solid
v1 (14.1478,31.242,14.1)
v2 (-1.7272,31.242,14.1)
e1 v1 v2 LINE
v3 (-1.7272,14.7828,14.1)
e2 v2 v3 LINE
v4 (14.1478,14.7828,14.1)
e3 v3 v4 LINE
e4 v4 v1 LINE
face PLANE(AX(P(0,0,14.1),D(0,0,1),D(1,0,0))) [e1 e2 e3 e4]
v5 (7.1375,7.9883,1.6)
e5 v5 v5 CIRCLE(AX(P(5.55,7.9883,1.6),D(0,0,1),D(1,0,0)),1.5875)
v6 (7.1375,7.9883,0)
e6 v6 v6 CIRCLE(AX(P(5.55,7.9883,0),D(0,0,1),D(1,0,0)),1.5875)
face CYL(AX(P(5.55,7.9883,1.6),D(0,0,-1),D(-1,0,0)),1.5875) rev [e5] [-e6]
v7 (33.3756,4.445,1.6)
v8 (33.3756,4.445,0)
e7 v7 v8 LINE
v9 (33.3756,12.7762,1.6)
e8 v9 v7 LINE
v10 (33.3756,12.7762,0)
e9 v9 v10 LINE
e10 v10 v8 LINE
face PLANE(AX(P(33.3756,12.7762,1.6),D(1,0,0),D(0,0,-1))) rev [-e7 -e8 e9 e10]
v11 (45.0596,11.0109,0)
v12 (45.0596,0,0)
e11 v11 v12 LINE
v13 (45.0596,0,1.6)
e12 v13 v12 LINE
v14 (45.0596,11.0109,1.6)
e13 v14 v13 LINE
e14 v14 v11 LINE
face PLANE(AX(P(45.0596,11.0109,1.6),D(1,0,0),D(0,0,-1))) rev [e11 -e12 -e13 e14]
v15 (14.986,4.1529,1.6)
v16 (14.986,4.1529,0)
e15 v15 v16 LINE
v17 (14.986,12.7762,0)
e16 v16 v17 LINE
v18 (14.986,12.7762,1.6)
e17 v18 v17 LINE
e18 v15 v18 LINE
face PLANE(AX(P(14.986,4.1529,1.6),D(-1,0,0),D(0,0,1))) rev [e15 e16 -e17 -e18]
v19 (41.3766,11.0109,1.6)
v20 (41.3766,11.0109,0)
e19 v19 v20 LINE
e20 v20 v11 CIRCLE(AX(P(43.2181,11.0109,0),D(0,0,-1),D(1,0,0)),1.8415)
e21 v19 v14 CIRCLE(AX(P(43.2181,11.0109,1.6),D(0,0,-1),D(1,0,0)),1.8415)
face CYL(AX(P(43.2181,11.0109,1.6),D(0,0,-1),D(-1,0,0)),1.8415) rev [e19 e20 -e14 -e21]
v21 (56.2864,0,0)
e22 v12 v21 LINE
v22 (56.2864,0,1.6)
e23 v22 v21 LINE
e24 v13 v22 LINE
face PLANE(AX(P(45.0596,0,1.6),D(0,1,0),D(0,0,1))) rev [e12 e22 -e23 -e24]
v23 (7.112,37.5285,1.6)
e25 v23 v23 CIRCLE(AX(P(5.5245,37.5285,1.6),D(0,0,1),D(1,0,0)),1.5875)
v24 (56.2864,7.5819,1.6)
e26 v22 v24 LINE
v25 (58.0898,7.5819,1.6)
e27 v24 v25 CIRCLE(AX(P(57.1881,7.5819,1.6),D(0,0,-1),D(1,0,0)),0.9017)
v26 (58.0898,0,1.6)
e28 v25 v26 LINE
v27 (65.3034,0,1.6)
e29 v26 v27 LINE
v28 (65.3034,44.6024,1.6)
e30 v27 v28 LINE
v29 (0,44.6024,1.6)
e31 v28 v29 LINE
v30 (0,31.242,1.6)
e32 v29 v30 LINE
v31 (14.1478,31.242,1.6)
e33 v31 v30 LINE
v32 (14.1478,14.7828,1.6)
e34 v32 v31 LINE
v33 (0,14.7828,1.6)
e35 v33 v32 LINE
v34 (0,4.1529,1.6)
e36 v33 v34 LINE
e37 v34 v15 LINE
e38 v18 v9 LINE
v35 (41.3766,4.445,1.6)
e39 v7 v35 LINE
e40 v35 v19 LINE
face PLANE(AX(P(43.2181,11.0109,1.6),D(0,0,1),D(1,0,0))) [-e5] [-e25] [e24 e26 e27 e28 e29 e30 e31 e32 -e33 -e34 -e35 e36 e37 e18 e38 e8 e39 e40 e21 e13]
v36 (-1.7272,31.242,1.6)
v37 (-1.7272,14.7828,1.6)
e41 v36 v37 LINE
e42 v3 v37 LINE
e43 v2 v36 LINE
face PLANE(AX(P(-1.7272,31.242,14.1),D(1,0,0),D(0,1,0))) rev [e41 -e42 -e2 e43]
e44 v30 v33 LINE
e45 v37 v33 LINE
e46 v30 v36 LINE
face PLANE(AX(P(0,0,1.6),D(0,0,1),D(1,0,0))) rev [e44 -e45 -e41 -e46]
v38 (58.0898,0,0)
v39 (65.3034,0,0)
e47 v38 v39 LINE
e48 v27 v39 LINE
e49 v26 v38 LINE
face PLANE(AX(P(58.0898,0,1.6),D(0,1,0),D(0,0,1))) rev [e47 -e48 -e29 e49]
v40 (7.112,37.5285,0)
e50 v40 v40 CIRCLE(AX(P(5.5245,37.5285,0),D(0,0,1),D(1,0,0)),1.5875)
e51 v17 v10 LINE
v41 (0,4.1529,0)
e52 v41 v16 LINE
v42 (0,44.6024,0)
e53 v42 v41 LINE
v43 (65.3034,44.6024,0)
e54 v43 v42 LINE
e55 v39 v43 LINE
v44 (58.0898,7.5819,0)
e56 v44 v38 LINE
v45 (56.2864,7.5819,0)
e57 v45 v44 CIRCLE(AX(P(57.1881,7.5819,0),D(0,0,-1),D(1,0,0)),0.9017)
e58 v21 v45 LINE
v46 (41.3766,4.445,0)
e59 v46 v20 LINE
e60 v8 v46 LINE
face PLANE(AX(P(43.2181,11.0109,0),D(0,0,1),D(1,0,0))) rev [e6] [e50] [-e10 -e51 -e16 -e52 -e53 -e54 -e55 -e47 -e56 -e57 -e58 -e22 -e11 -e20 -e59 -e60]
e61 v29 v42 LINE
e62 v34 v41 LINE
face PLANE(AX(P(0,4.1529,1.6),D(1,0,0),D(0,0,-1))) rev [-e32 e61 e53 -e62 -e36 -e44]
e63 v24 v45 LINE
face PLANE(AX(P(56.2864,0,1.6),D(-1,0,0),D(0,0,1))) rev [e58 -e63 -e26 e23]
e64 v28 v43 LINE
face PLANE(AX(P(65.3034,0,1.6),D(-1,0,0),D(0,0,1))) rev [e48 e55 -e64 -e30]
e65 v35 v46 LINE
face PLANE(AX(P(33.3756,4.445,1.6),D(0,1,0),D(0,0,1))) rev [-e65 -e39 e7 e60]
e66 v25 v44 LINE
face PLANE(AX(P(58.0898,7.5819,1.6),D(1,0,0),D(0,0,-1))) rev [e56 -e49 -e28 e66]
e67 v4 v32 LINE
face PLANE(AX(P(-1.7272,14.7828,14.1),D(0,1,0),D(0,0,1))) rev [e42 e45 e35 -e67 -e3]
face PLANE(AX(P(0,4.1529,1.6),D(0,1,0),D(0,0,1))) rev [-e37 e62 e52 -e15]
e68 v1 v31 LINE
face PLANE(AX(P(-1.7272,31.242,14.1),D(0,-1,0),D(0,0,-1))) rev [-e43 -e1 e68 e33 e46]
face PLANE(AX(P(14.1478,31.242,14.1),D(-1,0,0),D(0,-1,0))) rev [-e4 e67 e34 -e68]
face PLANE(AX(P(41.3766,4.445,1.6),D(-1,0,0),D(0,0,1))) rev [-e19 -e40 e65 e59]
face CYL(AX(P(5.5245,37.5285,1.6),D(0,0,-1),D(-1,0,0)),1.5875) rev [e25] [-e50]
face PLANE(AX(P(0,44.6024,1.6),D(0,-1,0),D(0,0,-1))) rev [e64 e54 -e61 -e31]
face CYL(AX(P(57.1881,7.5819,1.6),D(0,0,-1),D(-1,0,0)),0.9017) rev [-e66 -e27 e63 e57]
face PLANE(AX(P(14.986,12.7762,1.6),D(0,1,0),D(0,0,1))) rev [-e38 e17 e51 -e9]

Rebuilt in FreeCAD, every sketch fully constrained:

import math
import FreeCAD as App
import Part
import Sketcher
Q = App.Units.Quantity

doc = App.newDocument("Part")
body = doc.addObject("PartDesign::Body", "Body")

# Sketch on XY plane
sketch1 = doc.addObject("Sketcher::SketchObject", "Sketch")
body.addObject(sketch1)
sketch1.AttachmentSupport = (doc.XY_Plane, [""])
sketch1.MapMode = "FlatFace"
sketch1.addGeometry(Part.LineSegment(App.Vector(0, 4.2, 0), App.Vector(15, 4.2, 0)), False)
sketch1.addGeometry(Part.LineSegment(App.Vector(15, 4.2, 0), App.Vector(15, 12.8, 0)), False)
sketch1.addGeometry(Part.LineSegment(App.Vector(15, 12.8, 0), App.Vector(33.4, 12.8, 0)), False)
sketch1.addGeometry(Part.LineSegment(App.Vector(33.4, 12.8, 0), App.Vector(33.4, 4.4, 0)), False)
sketch1.addGeometry(Part.LineSegment(App.Vector(33.4, 4.4, 0), App.Vector(41.4, 4.4, 0)), False)
sketch1.addGeometry(Part.LineSegment(App.Vector(41.4, 4.4, 0), App.Vector(41.4, 11, 0)), False)
sketch1.addGeometry(Part.ArcOfCircle(Part.Circle(App.Vector(43.2, 11, 0), App.Vector(0, 0, 1), 1.8), math.radians(0), math.radians(180)), False)
sketch1.addGeometry(Part.LineSegment(App.Vector(45.1, 11, 0), App.Vector(45.1, 0, 0)), False)
sketch1.addGeometry(Part.LineSegment(App.Vector(45.1, 0, 0), App.Vector(56.3, 0, 0)), False)
sketch1.addGeometry(Part.LineSegment(App.Vector(56.3, 0, 0), App.Vector(56.3, 7.6, 0)), False)
sketch1.addGeometry(Part.ArcOfCircle(Part.Circle(App.Vector(57.2, 7.6, 0), App.Vector(0, 0, 1), 0.9), math.radians(0), math.radians(180)), False)
sketch1.addGeometry(Part.LineSegment(App.Vector(58.1, 7.6, 0), App.Vector(58.1, 0, 0)), False)
sketch1.addGeometry(Part.LineSegment(App.Vector(58.1, 0, 0), App.Vector(65.3, 0, 0)), False)
sketch1.addGeometry(Part.LineSegment(App.Vector(65.3, 0, 0), App.Vector(65.3, 44.6, 0)), False)
sketch1.addGeometry(Part.LineSegment(App.Vector(65.3, 44.6, 0), App.Vector(0, 44.6, 0)), False)
sketch1.addGeometry(Part.LineSegment(App.Vector(0, 44.6, 0), App.Vector(0, 4.2, 0)), False)
sketch1.addGeometry(Part.Circle(App.Vector(5.5, 8, 0), App.Vector(0, 0, 1), 1.6), False)
sketch1.addGeometry(Part.Circle(App.Vector(5.5, 37.5, 0), App.Vector(0, 0, 1), 1.6), False)
sketch1.addConstraint(Sketcher.Constraint("Coincident", 0, 2, 1, 1))
sketch1.addConstraint(Sketcher.Constraint("Coincident", 1, 2, 2, 1))
sketch1.addConstraint(Sketcher.Constraint("Coincident", 2, 2, 3, 1))
sketch1.addConstraint(Sketcher.Constraint("Coincident", 3, 2, 4, 1))
sketch1.addConstraint(Sketcher.Constraint("Coincident", 4, 2, 5, 1))
sketch1.addConstraint(Sketcher.Constraint("Tangent", 5, 2, 6, 2))
sketch1.addConstraint(Sketcher.Constraint("Tangent", 6, 1, 7, 1))
sketch1.addConstraint(Sketcher.Constraint("Coincident", 7, 2, 8, 1))
sketch1.addConstraint(Sketcher.Constraint("Coincident", 8, 2, 9, 1))
sketch1.addConstraint(Sketcher.Constraint("Tangent", 9, 2, 10, 2))
sketch1.addConstraint(Sketcher.Constraint("Tangent", 10, 1, 11, 1))
sketch1.addConstraint(Sketcher.Constraint("Coincident", 11, 2, 12, 1))
sketch1.addConstraint(Sketcher.Constraint("Coincident", 12, 2, 13, 1))
sketch1.addConstraint(Sketcher.Constraint("Coincident", 13, 2, 14, 1))
sketch1.addConstraint(Sketcher.Constraint("Coincident", 14, 2, 15, 1))
sketch1.addConstraint(Sketcher.Constraint("Coincident", 15, 2, 0, 1))
sketch1.addConstraint(Sketcher.Constraint("Horizontal", 0))
sketch1.addConstraint(Sketcher.Constraint("Vertical", 1))
sketch1.addConstraint(Sketcher.Constraint("Horizontal", 2))
sketch1.addConstraint(Sketcher.Constraint("Vertical", 3))
sketch1.addConstraint(Sketcher.Constraint("Horizontal", 4))
sketch1.addConstraint(Sketcher.Constraint("Vertical", 5))
sketch1.addConstraint(Sketcher.Constraint("Vertical", 7))
sketch1.addConstraint(Sketcher.Constraint("Horizontal", 8))
sketch1.addConstraint(Sketcher.Constraint("Vertical", 9))
sketch1.addConstraint(Sketcher.Constraint("Vertical", 11))
sketch1.addConstraint(Sketcher.Constraint("Horizontal", 12))
sketch1.addConstraint(Sketcher.Constraint("Vertical", 13))
sketch1.addConstraint(Sketcher.Constraint("Horizontal", 14))
sketch1.addConstraint(Sketcher.Constraint("Vertical", 15))
sketch1.addConstraint(Sketcher.Constraint("Equal", 16, 17))
sketch1.addConstraint(Sketcher.Constraint("PointOnObject", 7, 2, -1))
sketch1.addConstraint(Sketcher.Constraint("PointOnObject", 11, 2, -1))
sketch1.addConstraint(Sketcher.Constraint("PointOnObject", 14, 2, -2))
sketch1.addConstraint(Sketcher.Constraint("Diameter", 16, Q("0.125 in")))
sketch1.addConstraint(Sketcher.Constraint("DistanceX", 0, 1, 0, 2, Q("0.59 in")))
sketch1.addConstraint(Sketcher.Constraint("Radius", 6, Q("0.0725 in")))
sketch1.addConstraint(Sketcher.Constraint("Radius", 10, Q("0.0355 in")))
sketch1.addConstraint(Sketcher.Constraint("DistanceX", 2, 1, 2, 2, Q("0.724 in")))
sketch1.addConstraint(Sketcher.Constraint("DistanceX", 4, 1, 4, 2, Q("0.315 in")))
sketch1.addConstraint(Sketcher.Constraint("DistanceX", 8, 1, 8, 2, Q("0.442 in")))
sketch1.addConstraint(Sketcher.Constraint("DistanceX", 12, 1, 12, 2, Q("0.284 in")))
sketch1.addConstraint(Sketcher.Constraint("DistanceY", 3, 2, 3, 1, Q("0.328 in")))
sketch1.addConstraint(Sketcher.Constraint("DistanceY", 13, 1, 13, 2, Q("1.756 in")))
sketch1.addConstraint(Sketcher.Constraint("DistanceY", 0, 2, 6, 3, Q("0.27 in")))
sketch1.addConstraint(Sketcher.Constraint("DistanceY", 1, 1, 1, 2, Q("0.3395 in")))
sketch1.addConstraint(Sketcher.Constraint("DistanceY", 7, 2, 7, 1, Q("0.4335 in")))
sketch1.addConstraint(Sketcher.Constraint("DistanceY", 9, 1, 9, 2, Q("0.2985 in")))
sketch1.addConstraint(Sketcher.Constraint("DistanceY", 16, 3, 6, 3, Q("0.119 in")))
sketch1.addConstraint(Sketcher.Constraint("DistanceY", 16, 3, 17, 3, Q("1.163 in")))
sketch1.addConstraint(Sketcher.Constraint("DistanceX", 17, 3, 6, 3, Q("1.484 in")))
sketch1.addConstraint(Sketcher.Constraint("DistanceX", -1, 1, 16, 3, 5.55))
pad1 = doc.addObject("PartDesign::Pad", "Pad")
body.addObject(pad1)
pad1.Profile = sketch1
pad1.Length = 1.6

# Sketch on XY plane
sketch2 = doc.addObject("Sketcher::SketchObject", "Sketch001")
body.addObject(sketch2)
sketch2.AttachmentSupport = (doc.XY_Plane, [""])
sketch2.MapMode = "FlatFace"
sketch2.AttachmentOffset = App.Placement(App.Vector(0, 0, 1.6), App.Rotation())
sketch2.addGeometry(Part.LineSegment(App.Vector(-2, 31, 0), App.Vector(-2, 15, 0)), False)
sketch2.addGeometry(Part.LineSegment(App.Vector(-2, 15, 0), App.Vector(14, 15, 0)), False)
sketch2.addGeometry(Part.LineSegment(App.Vector(14, 15, 0), App.Vector(14, 31, 0)), False)
sketch2.addGeometry(Part.LineSegment(App.Vector(14, 31, 0), App.Vector(-2, 31, 0)), False)
sketch2.addConstraint(Sketcher.Constraint("Coincident", 0, 2, 1, 1))
sketch2.addConstraint(Sketcher.Constraint("Coincident", 1, 2, 2, 1))
sketch2.addConstraint(Sketcher.Constraint("Coincident", 2, 2, 3, 1))
sketch2.addConstraint(Sketcher.Constraint("Coincident", 3, 2, 0, 1))
sketch2.addConstraint(Sketcher.Constraint("Vertical", 0))
sketch2.addConstraint(Sketcher.Constraint("Horizontal", 1))
sketch2.addConstraint(Sketcher.Constraint("Vertical", 2))
sketch2.addConstraint(Sketcher.Constraint("Horizontal", 3))
sketch2.addConstraint(Sketcher.Constraint("DistanceX", 1, 1, 1, 2, Q("0.625 in")))
sketch2.addConstraint(Sketcher.Constraint("DistanceY", 0, 2, 0, 1, Q("0.648 in")))
sketch2.addConstraint(Sketcher.Constraint("DistanceY", -1, 1, 2, 2, Q("1.23 in")))
sketch2.addConstraint(Sketcher.Constraint("DistanceX", 0, 2, -1, 1, Q("0.068 in")))
pad2 = doc.addObject("PartDesign::Pad", "Pad001")
body.addObject(pad2)
pad2.Profile = sketch2
pad2.Length = 12.5

doc.recompute()
